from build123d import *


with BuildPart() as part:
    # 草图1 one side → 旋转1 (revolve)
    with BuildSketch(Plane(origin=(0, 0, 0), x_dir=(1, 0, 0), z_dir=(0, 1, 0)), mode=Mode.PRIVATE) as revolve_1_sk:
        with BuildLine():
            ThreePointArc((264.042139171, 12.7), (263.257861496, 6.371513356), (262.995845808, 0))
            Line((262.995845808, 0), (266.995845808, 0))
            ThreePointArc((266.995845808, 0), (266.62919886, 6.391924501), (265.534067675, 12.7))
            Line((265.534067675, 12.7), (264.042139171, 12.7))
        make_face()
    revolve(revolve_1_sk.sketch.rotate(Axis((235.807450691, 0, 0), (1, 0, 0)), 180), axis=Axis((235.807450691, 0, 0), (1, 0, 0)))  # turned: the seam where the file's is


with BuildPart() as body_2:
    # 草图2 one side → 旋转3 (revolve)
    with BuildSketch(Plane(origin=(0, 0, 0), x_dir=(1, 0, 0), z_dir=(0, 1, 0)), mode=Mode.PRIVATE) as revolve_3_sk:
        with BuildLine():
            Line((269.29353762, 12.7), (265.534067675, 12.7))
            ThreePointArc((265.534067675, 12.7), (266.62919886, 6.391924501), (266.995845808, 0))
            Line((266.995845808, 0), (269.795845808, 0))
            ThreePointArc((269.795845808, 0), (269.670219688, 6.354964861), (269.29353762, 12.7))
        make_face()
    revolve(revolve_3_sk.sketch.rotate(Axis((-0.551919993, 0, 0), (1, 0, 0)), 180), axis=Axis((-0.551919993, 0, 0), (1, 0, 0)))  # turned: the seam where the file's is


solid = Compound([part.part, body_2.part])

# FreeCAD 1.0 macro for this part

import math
import FreeCAD as App
import Part
import Sketcher

V = App.Vector

doc = App.newDocument("Part")
params = doc.addObject("Spreadsheet::Sheet", "Params")
for row, (alias, value) in enumerate([
    ("sketch1_radius", "77.6 mm"),
    ("sketch1_radius2", "55.9 mm"),
    ("sketch1_width", "4 mm"),
    ("revolution_angle", "360 deg"),
    ("sketch2_radius", "55.9 mm"),
    ("sketch2_radius2", "160.8 mm"),
    ("sketch2_width", "2.8 mm"),
    ("revolution2_angle", "360 deg"),
], start=1):
    params.set(f"A{row}", alias)
    params.set(f"B{row}", "=" + value)
    params.setAlias(f"B{row}", alias)

body = doc.addObject("PartDesign::Body", "Body")

# Sketch on XZ plane
sketch1 = doc.addObject("Sketcher::SketchObject", "Sketch")
body.addObject(sketch1)
sketch1.AttachmentSupport = (doc.XZ_Plane, [""])
sketch1.MapMode = "FlatFace"
sketch1.addGeometry(Part.ArcOfCircle(Part.Circle(V(340.6, 0, 0), V(0, 0, 1), 77.6), math.radians(-180), math.radians(-170.58)), False)
sketch1.addGeometry(Part.LineSegment(V(263, 0, 0), V(267, 0, 0)), False)
sketch1.addGeometry(Part.ArcOfCircle(Part.Circle(V(211.1, 0, 0), V(0, 0, 1), 55.9), math.radians(-13.13), math.radians(0)), False)
sketch1.addGeometry(Part.LineSegment(V(265.5, -12.7, 0), V(264, -12.7, 0)), False)
sketch1.addConstraint(Sketcher.Constraint("Coincident", 0, 1, 1, 1))
sketch1.addConstraint(Sketcher.Constraint("Coincident", 1, 2, 2, 2))
sketch1.addConstraint(Sketcher.Constraint("Coincident", 2, 1, 3, 1))
sketch1.addConstraint(Sketcher.Constraint("Coincident", 3, 2, 0, 2))
sketch1.addConstraint(Sketcher.Constraint("Horizontal", 1))
sketch1.addConstraint(Sketcher.Constraint("Horizontal", 3))
sketch1.addConstraint(Sketcher.Constraint("PointOnObject", 0, 3, -1))
sketch1.addConstraint(Sketcher.Constraint("PointOnObject", 2, 3, -1))
sketch1.addConstraint(Sketcher.Constraint("PointOnObject", 0, 1, -1))
sketch1.addConstraint(Sketcher.Constraint("Radius", 0, 77.6))
sketch1.addConstraint(Sketcher.Constraint("Radius", 2, 55.9))
sketch1.addConstraint(Sketcher.Constraint("DistanceX", 1, 1, 1, 2, 4.0))
sketch1.addConstraint(Sketcher.Constraint("DistanceY", 2, 1, -1, 1, 12.7))
sketch1.addConstraint(Sketcher.Constraint("DistanceX", -1, 1, 3, 2, 264.042139))
sketch1.setExpression("Constraints[9]", "Params.sketch1_radius")
sketch1.setExpression("Constraints[10]", "Params.sketch1_radius2")
sketch1.setExpression("Constraints[11]", "Params.sketch1_width")
revolution = doc.addObject("PartDesign::Revolution", "Revolution")
body.addObject(revolution)
revolution.Profile = sketch1
revolution.ReferenceAxis = (sketch1, ["H_Axis"])
revolution.setExpression("Angle", "Params.revolution_angle")
body2 = doc.addObject("PartDesign::Body", "Body001")

# Sketch on XZ plane
sketch2 = doc.addObject("Sketcher::SketchObject", "Sketch001")
body2.addObject(sketch2)
sketch2.AttachmentSupport = (doc.getObject("XZ_Plane001"), [""])
sketch2.MapMode = "FlatFace"
sketch2.addGeometry(Part.LineSegment(V(269.3, -12.7, 0), V(265.5, -12.7, 0)), False)
sketch2.addGeometry(Part.ArcOfCircle(Part.Circle(V(211.1, 0, 0), V(0, 0, 1), 55.9), math.radians(-13.13), math.radians(0)), False)
sketch2.addGeometry(Part.LineSegment(V(267, 0, 0), V(269.8, 0, 0)), False)
sketch2.addGeometry(Part.ArcOfCircle(Part.Circle(V(109, 0, 0), V(0, 0, 1), 160.8), math.radians(-4.53), math.radians(0)), False)
sketch2.addConstraint(Sketcher.Constraint("Coincident", 0, 2, 1, 1))
sketch2.addConstraint(Sketcher.Constraint("Coincident", 1, 2, 2, 1))
sketch2.addConstraint(Sketcher.Constraint("Coincident", 2, 2, 3, 2))
sketch2.addConstraint(Sketcher.Constraint("Coincident", 3, 1, 0, 1))
sketch2.addConstraint(Sketcher.Constraint("Horizontal", 0))
sketch2.addConstraint(Sketcher.Constraint("Horizontal", 2))
sketch2.addConstraint(Sketcher.Constraint("PointOnObject", 1, 3, -1))
sketch2.addConstraint(Sketcher.Constraint("PointOnObject", 3, 3, -1))
sketch2.addConstraint(Sketcher.Constraint("PointOnObject", 1, 2, -1))
sketch2.addConstraint(Sketcher.Constraint("Radius", 1, 55.9))
sketch2.addConstraint(Sketcher.Constraint("Radius", 3, 160.8))
sketch2.addConstraint(Sketcher.Constraint("DistanceX", 2, 1, 2, 2, 2.8))
sketch2.addConstraint(Sketcher.Constraint("DistanceY", 0, 2, -1, 1, 12.7))
sketch2.addConstraint(Sketcher.Constraint("DistanceX", -1, 1, 1, 3, 211.095846))
sketch2.setExpression("Constraints[9]", "Params.sketch2_radius")
sketch2.setExpression("Constraints[10]", "Params.sketch2_radius2")
sketch2.setExpression("Constraints[11]", "Params.sketch2_width")
revolution2 = doc.addObject("PartDesign::Revolution", "Revolution001")
body2.addObject(revolution2)
revolution2.Profile = sketch2
revolution2.ReferenceAxis = (sketch2, ["H_Axis"])
revolution2.setExpression("Angle", "Params.revolution2_angle")

doc.recompute()
